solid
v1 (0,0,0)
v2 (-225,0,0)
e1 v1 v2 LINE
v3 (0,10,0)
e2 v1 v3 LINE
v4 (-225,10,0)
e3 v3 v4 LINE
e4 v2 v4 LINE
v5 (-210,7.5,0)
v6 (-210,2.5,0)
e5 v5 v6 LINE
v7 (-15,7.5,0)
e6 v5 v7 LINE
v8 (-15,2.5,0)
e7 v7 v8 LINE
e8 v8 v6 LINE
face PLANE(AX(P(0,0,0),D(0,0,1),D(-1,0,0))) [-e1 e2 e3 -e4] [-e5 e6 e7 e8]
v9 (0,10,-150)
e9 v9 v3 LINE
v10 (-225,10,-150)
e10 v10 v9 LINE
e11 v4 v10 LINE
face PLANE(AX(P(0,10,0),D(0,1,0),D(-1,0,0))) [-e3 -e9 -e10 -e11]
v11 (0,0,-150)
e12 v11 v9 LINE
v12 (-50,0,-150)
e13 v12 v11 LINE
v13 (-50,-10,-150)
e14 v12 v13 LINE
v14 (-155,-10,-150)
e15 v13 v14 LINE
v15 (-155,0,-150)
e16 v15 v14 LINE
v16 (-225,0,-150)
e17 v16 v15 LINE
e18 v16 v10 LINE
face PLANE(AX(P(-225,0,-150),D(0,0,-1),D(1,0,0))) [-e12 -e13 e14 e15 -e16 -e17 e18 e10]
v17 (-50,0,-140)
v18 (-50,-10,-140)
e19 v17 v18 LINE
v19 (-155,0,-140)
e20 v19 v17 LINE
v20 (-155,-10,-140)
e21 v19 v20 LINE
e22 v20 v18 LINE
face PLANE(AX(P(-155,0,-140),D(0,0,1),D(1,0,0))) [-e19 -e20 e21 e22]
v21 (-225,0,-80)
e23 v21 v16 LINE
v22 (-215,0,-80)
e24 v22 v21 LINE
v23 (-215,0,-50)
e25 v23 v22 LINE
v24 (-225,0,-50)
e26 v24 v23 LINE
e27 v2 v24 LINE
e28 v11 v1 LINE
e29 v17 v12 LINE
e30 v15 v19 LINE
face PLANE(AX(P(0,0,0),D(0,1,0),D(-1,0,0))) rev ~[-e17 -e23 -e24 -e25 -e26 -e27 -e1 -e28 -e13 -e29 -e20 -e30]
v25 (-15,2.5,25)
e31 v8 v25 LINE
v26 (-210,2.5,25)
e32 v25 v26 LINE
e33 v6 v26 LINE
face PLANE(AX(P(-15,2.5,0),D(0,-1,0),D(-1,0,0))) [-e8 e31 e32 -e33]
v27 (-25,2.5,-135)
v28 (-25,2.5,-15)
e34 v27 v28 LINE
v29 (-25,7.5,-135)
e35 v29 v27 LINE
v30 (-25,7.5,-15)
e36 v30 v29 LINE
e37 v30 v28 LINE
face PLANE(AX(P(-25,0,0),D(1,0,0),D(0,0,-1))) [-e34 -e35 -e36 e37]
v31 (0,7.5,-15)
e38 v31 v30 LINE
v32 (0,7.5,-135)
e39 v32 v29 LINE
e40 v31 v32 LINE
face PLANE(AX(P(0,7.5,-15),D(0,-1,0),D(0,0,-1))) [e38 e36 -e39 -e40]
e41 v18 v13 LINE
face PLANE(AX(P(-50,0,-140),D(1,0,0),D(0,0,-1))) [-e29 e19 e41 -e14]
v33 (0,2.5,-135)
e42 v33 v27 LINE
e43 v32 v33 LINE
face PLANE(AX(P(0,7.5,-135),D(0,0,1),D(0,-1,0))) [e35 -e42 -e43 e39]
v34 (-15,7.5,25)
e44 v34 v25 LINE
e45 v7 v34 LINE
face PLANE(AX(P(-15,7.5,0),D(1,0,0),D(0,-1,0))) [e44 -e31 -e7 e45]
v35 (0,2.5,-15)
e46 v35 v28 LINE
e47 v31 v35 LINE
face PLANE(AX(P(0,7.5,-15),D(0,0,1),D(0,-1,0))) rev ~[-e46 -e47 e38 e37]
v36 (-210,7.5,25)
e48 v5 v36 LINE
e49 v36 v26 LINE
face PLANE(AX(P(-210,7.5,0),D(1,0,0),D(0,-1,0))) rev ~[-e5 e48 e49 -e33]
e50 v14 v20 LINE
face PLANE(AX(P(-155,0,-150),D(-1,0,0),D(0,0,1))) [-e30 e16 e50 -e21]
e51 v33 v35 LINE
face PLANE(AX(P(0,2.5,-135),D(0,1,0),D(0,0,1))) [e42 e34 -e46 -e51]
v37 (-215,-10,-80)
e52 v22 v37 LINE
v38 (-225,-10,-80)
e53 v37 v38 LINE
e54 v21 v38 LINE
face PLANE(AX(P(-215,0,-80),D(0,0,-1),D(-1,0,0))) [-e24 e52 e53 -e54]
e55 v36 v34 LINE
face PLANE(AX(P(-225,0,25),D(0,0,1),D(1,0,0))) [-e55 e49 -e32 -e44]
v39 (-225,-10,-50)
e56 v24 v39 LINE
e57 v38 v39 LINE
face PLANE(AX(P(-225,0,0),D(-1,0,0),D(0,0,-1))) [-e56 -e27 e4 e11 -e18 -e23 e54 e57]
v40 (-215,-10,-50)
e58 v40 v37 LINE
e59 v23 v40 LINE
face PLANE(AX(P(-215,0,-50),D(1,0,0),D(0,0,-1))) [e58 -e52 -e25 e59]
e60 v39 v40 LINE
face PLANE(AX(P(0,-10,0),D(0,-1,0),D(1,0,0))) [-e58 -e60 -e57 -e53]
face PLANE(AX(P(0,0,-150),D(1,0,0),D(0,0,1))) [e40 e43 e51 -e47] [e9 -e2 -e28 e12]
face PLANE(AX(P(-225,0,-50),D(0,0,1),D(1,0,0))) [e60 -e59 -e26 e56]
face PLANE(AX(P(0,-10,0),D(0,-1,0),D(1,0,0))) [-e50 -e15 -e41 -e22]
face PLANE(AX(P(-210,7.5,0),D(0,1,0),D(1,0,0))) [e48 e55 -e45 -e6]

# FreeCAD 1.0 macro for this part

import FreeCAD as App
import Part
import Sketcher
Q = App.Units.Quantity


def add_polygon(sketch, points):
    """Adds a closed chain of lines whose ends are joined by coincident constraints."""
    first, n = sketch.GeometryCount, len(points)
    for a, b in zip(points, points[1:] + points[:1]):
        sketch.addGeometry(Part.LineSegment(App.Vector(*a, 0), App.Vector(*b, 0)), False)
    for i in range(n):
        sketch.addConstraint(Sketcher.Constraint("Coincident", first + i, 2, first + (i + 1) % n, 1))

doc = App.newDocument("Part")
params = doc.addObject("Spreadsheet::Sheet", "Params")
for row, (alias, value) in enumerate([
    ("sketch1_width", "225 mm"),
    ("sketch1_height", "150 mm"),
    ("pad1_length", "10 mm"),
    ("sketch2_height", "5 mm"),
    ("sketch2_width", "195 mm"),
    ("pad2_length", "25 mm"),
    ("sketch3_width", "5 mm"),
    ("sketch3_height", "120 mm"),
    ("pocket1_length", "25 mm"),
    ("sketch4_width", "10 mm"),
    ("sketch4_width2", "105 mm"),
    ("sketch4_height", "30 mm"),
    ("pad3_length", "10 mm"),
], start=1):
    params.set(f"A{row}", alias)
    params.set(f"B{row}", "=" + value)
    params.setAlias(f"B{row}", alias)

body = doc.addObject("PartDesign::Body", "Body")

# Sketch on XZ plane
sketch1 = body.newObject("Sketcher::SketchObject", "Sketch")
sketch1.AttachmentSupport = (doc.getObject("XZ_Plane"), [""])
sketch1.MapMode = "FlatFace"
add_polygon(sketch1, [(-225, 0), (0, 0), (0, -150), (-225, -150)])  # lines 0-3
sketch1.addConstraint([
    Sketcher.Constraint("Horizontal", 0),
    Sketcher.Constraint("Vertical", 1),
    Sketcher.Constraint("Horizontal", 2),
    Sketcher.Constraint("Vertical", 3),
    Sketcher.Constraint("Coincident", 0, 2, -1, 1),
    Sketcher.Constraint("DistanceX", 0, 1, 0, 2, Q("225 mm")),
    Sketcher.Constraint("DistanceY", 1, 2, 1, 1, Q("150 mm")),
])
sketch1.setExpression("Constraints[9]", "Params.sketch1_width")
sketch1.setExpression("Constraints[10]", "Params.sketch1_height")
pad1 = body.newObject("PartDesign::Pad", "Pad")
pad1.Profile = sketch1
pad1.setExpression("Length", "Params.pad1_length")
pad1.Reversed = True

# Sketch on XY plane
sketch2 = body.newObject("Sketcher::SketchObject", "Sketch001")
sketch2.AttachmentSupport = (doc.getObject("XY_Plane"), [""])
sketch2.MapMode = "FlatFace"
add_polygon(sketch2, [(-210, 8), (-210, 2), (-15, 2), (-15, 8)])  # lines 0-3
sketch2.addConstraint([
    Sketcher.Constraint("Vertical", 0),
    Sketcher.Constraint("Horizontal", 1),
    Sketcher.Constraint("Vertical", 2),
    Sketcher.Constraint("Horizontal", 3),
    Sketcher.Constraint("DistanceY", 0, 2, 0, 1, Q("5 mm")),
    Sketcher.Constraint("DistanceX", 1, 2, -1, 1, Q("15 mm")),
    Sketcher.Constraint("DistanceX", 1, 1, 1, 2, Q("195 mm")),
    Sketcher.Constraint("DistanceY", -1, 1, 0, 2, Q("2.5 mm")),
])
sketch2.setExpression("Constraints[8]", "Params.sketch2_height")
sketch2.setExpression("Constraints[10]", "Params.sketch2_width")
pad2 = body.newObject("PartDesign::Pad", "Pad001")
pad2.Profile = sketch2
pad2.setExpression("Length", "Params.pad2_length")

# Sketch on YZ plane
sketch3 = body.newObject("Sketcher::SketchObject", "Sketch002")
sketch3.AttachmentSupport = (doc.getObject("YZ_Plane"), [""])
sketch3.MapMode = "FlatFace"
add_polygon(sketch3, [(8, -15), (2, -15), (2, -135), (8, -135)])  # lines 0-3
sketch3.addConstraint([
    Sketcher.Constraint("Horizontal", 0),
    Sketcher.Constraint("Vertical", 1),
    Sketcher.Constraint("Horizontal", 2),
    Sketcher.Constraint("Vertical", 3),
    Sketcher.Constraint("DistanceX", 0, 2, 0, 1, Q("5 mm")),
    Sketcher.Constraint("DistanceY", 0, 2, -1, 1, Q("15 mm")),
    Sketcher.Constraint("DistanceY", 1, 2, 1, 1, Q("120 mm")),
    Sketcher.Constraint("DistanceX", -1, 1, 0, 2, Q("2.5 mm")),
])
sketch3.setExpression("Constraints[8]", "Params.sketch3_width")
sketch3.setExpression("Constraints[10]", "Params.sketch3_height")
pocket1 = body.newObject("PartDesign::Pocket", "Pocket")
pocket1.Profile = sketch3
pocket1.setExpression("Length", "Params.pocket1_length")

# Sketch on XZ plane
sketch4 = body.newObject("Sketcher::SketchObject", "Sketch003")
sketch4.AttachmentSupport = (doc.getObject("XZ_Plane"), [""])
sketch4.MapMode = "FlatFace"
add_polygon(sketch4, [(-225, -50), (-225, -80), (-215, -80), (-215, -50)])  # lines 0-3
add_polygon(sketch4, [(-155, -150), (-50, -150), (-50, -140), (-155, -140)])  # lines 4-7
sketch4.addConstraint([
    Sketcher.Constraint("Vertical", 0),
    Sketcher.Constraint("Horizontal", 1),
    Sketcher.Constraint("Vertical", 2),
    Sketcher.Constraint("Horizontal", 3),
    Sketcher.Constraint("Horizontal", 4),
    Sketcher.Constraint("Vertical", 5),
    Sketcher.Constraint("Horizontal", 6),
    Sketcher.Constraint("Vertical", 7),
    Sketcher.Constraint("Equal", 3, 5),
    Sketcher.Constraint("DistanceX", 1, 1, 1, 2, Q("10 mm")),
    Sketcher.Constraint("DistanceX", 4, 1, 4, 2, Q("105 mm")),
    Sketcher.Constraint("DistanceY", 0, 2, 0, 1, Q("30 mm")),
    Sketcher.Constraint("DistanceX", 0, 2, -1, 1, Q("225 mm")),
    Sketcher.Constraint("DistanceY", 0, 2, -1, 1, Q("80 mm")),
    Sketcher.Constraint("DistanceX", 4, 2, -1, 1, Q("50 mm")),
    Sketcher.Constraint("DistanceY", 4, 2, -1, 1, Q("150 mm")),
])
sketch4.setExpression("Constraints[17]", "Params.sketch4_width")
sketch4.setExpression("Constraints[18]", "Params.sketch4_width2")
sketch4.setExpression("Constraints[19]", "Params.sketch4_height")
pad3 = body.newObject("PartDesign::Pad", "Pad002")
pad3.Profile = sketch4
pad3.setExpression("Length", "Params.pad3_length")

doc.recompute()
